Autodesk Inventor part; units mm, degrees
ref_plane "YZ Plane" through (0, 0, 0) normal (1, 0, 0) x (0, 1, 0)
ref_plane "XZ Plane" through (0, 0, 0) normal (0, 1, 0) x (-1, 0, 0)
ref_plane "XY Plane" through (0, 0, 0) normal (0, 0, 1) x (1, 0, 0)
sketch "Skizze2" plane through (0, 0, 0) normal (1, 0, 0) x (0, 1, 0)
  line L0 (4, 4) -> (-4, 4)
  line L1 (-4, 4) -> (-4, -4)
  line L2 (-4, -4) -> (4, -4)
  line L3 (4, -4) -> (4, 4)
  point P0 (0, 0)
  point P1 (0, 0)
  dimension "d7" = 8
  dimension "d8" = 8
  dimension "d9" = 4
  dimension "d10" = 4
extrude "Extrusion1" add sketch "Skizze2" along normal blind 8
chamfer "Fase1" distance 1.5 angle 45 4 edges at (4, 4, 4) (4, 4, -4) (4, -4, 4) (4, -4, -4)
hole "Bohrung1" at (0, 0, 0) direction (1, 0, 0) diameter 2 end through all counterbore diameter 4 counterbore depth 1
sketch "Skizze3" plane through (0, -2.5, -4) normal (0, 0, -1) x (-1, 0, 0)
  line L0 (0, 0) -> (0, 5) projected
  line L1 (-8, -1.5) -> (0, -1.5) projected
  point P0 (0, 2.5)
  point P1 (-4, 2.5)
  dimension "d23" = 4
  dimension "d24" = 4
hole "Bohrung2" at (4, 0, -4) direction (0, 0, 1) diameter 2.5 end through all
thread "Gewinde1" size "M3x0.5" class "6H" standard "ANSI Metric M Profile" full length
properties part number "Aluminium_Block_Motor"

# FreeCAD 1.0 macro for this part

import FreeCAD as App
import Part
import Sketcher


def edges_at(feature, points):
    """Names of the edges that pass closest to the given points."""
    edges = feature.Shape.Edges
    near = lambda p: min(range(len(edges)), key=lambda i: edges[i].distToShape(Part.Vertex(*p))[0])
    return sorted({f"Edge{near(p) + 1}" for p in points})

doc = App.newDocument("Part")
body = doc.addObject("PartDesign::Body", "Body")

# Sketch on YZ plane
sketch1 = body.newObject("Sketcher::SketchObject", "Sketch")
sketch1.AttachmentSupport = (doc.getObject("YZ_Plane"), [""])
sketch1.MapMode = "FlatFace"
sketch1.addGeometry([
    Part.LineSegment(App.Vector(4, -4, 0), App.Vector(4, 4, 0)),
    Part.LineSegment(App.Vector(4, 4, 0), App.Vector(-4, 4, 0)),
    Part.LineSegment(App.Vector(-4, 4, 0), App.Vector(-4, -4, 0)),
    Part.LineSegment(App.Vector(-4, -4, 0), App.Vector(4, -4, 0)),
], False)
sketch1.addConstraint([
    Sketcher.Constraint("Coincident", 0, 2, 1, 1),
    Sketcher.Constraint("Coincident", 1, 2, 2, 1),
    Sketcher.Constraint("Coincident", 2, 2, 3, 1),
    Sketcher.Constraint("Coincident", 3, 2, 0, 1),
    Sketcher.Constraint("Vertical", 0),
    Sketcher.Constraint("Horizontal", 1),
    Sketcher.Constraint("Vertical", 2),
    Sketcher.Constraint("Horizontal", 3),
    Sketcher.Constraint("Symmetric", 0, 2, 2, 2, -1, 1),
    Sketcher.Constraint("Equal", 3, 0),
    Sketcher.Constraint("DistanceX", 1, 2, 1, 1, 8.0),
])
pad1 = body.newObject("PartDesign::Pad", "Pad")
pad1.Profile = sketch1
pad1.Length = 8
doc.recompute()

chamfer = body.newObject("PartDesign::Chamfer", "Chamfer")
chamfer.Base = (pad1, edges_at(pad1, [
    (4, 4, 4),
    (4, 4, -4),
    (4, -4, 4),
    (4, -4, -4),
]))
chamfer.Size = 1.5

# Sketch on YZ plane
sketch2 = body.newObject("Sketcher::SketchObject", "Sketch001")
sketch2.AttachmentSupport = (doc.getObject("YZ_Plane"), [""])
sketch2.MapMode = "FlatFace"
sketch2.addGeometry(Part.Circle(App.Vector(0, 0, 0), App.Vector(0, 0, 1), 1), False)
sketch2.addConstraint([
    Sketcher.Constraint("Coincident", 0, 3, -1, 1),
    Sketcher.Constraint("Diameter", 0, 2.0),
])
doc.recompute()
hole = body.newObject("PartDesign::Hole", "Hole")
hole.Profile = sketch2
hole.ThreadType = "None"
hole.Diameter = 2
hole.DepthType = "ThroughAll"
hole.HoleCutType = "Counterbore"
hole.HoleCutDiameter = 4
hole.HoleCutDepth = 1
hole.Reversed = True

# Sketch on XY plane
sketch3 = body.newObject("Sketcher::SketchObject", "Sketch002")
sketch3.AttachmentSupport = (doc.getObject("XY_Plane"), [""])
sketch3.MapMode = "FlatFace"
sketch3.AttachmentOffset = App.Placement(App.Vector(0, 0, -4), App.Rotation())
sketch3.addGeometry(Part.Circle(App.Vector(4, 0, 0), App.Vector(0, 0, 1), 1.25), False)
sketch3.addConstraint([
    Sketcher.Constraint("PointOnObject", 0, 3, -1),
    Sketcher.Constraint("Diameter", 0, 2.5),
    Sketcher.Constraint("DistanceX", -1, 1, 0, 3, 4.0),
])
doc.recompute()
hole2 = body.newObject("PartDesign::Hole", "Hole001")
hole2.Profile = sketch3
hole2.ThreadType = "None"
hole2.Diameter = 2.5
hole2.DepthType = "ThroughAll"
hole2.Reversed = True

doc.recompute()
